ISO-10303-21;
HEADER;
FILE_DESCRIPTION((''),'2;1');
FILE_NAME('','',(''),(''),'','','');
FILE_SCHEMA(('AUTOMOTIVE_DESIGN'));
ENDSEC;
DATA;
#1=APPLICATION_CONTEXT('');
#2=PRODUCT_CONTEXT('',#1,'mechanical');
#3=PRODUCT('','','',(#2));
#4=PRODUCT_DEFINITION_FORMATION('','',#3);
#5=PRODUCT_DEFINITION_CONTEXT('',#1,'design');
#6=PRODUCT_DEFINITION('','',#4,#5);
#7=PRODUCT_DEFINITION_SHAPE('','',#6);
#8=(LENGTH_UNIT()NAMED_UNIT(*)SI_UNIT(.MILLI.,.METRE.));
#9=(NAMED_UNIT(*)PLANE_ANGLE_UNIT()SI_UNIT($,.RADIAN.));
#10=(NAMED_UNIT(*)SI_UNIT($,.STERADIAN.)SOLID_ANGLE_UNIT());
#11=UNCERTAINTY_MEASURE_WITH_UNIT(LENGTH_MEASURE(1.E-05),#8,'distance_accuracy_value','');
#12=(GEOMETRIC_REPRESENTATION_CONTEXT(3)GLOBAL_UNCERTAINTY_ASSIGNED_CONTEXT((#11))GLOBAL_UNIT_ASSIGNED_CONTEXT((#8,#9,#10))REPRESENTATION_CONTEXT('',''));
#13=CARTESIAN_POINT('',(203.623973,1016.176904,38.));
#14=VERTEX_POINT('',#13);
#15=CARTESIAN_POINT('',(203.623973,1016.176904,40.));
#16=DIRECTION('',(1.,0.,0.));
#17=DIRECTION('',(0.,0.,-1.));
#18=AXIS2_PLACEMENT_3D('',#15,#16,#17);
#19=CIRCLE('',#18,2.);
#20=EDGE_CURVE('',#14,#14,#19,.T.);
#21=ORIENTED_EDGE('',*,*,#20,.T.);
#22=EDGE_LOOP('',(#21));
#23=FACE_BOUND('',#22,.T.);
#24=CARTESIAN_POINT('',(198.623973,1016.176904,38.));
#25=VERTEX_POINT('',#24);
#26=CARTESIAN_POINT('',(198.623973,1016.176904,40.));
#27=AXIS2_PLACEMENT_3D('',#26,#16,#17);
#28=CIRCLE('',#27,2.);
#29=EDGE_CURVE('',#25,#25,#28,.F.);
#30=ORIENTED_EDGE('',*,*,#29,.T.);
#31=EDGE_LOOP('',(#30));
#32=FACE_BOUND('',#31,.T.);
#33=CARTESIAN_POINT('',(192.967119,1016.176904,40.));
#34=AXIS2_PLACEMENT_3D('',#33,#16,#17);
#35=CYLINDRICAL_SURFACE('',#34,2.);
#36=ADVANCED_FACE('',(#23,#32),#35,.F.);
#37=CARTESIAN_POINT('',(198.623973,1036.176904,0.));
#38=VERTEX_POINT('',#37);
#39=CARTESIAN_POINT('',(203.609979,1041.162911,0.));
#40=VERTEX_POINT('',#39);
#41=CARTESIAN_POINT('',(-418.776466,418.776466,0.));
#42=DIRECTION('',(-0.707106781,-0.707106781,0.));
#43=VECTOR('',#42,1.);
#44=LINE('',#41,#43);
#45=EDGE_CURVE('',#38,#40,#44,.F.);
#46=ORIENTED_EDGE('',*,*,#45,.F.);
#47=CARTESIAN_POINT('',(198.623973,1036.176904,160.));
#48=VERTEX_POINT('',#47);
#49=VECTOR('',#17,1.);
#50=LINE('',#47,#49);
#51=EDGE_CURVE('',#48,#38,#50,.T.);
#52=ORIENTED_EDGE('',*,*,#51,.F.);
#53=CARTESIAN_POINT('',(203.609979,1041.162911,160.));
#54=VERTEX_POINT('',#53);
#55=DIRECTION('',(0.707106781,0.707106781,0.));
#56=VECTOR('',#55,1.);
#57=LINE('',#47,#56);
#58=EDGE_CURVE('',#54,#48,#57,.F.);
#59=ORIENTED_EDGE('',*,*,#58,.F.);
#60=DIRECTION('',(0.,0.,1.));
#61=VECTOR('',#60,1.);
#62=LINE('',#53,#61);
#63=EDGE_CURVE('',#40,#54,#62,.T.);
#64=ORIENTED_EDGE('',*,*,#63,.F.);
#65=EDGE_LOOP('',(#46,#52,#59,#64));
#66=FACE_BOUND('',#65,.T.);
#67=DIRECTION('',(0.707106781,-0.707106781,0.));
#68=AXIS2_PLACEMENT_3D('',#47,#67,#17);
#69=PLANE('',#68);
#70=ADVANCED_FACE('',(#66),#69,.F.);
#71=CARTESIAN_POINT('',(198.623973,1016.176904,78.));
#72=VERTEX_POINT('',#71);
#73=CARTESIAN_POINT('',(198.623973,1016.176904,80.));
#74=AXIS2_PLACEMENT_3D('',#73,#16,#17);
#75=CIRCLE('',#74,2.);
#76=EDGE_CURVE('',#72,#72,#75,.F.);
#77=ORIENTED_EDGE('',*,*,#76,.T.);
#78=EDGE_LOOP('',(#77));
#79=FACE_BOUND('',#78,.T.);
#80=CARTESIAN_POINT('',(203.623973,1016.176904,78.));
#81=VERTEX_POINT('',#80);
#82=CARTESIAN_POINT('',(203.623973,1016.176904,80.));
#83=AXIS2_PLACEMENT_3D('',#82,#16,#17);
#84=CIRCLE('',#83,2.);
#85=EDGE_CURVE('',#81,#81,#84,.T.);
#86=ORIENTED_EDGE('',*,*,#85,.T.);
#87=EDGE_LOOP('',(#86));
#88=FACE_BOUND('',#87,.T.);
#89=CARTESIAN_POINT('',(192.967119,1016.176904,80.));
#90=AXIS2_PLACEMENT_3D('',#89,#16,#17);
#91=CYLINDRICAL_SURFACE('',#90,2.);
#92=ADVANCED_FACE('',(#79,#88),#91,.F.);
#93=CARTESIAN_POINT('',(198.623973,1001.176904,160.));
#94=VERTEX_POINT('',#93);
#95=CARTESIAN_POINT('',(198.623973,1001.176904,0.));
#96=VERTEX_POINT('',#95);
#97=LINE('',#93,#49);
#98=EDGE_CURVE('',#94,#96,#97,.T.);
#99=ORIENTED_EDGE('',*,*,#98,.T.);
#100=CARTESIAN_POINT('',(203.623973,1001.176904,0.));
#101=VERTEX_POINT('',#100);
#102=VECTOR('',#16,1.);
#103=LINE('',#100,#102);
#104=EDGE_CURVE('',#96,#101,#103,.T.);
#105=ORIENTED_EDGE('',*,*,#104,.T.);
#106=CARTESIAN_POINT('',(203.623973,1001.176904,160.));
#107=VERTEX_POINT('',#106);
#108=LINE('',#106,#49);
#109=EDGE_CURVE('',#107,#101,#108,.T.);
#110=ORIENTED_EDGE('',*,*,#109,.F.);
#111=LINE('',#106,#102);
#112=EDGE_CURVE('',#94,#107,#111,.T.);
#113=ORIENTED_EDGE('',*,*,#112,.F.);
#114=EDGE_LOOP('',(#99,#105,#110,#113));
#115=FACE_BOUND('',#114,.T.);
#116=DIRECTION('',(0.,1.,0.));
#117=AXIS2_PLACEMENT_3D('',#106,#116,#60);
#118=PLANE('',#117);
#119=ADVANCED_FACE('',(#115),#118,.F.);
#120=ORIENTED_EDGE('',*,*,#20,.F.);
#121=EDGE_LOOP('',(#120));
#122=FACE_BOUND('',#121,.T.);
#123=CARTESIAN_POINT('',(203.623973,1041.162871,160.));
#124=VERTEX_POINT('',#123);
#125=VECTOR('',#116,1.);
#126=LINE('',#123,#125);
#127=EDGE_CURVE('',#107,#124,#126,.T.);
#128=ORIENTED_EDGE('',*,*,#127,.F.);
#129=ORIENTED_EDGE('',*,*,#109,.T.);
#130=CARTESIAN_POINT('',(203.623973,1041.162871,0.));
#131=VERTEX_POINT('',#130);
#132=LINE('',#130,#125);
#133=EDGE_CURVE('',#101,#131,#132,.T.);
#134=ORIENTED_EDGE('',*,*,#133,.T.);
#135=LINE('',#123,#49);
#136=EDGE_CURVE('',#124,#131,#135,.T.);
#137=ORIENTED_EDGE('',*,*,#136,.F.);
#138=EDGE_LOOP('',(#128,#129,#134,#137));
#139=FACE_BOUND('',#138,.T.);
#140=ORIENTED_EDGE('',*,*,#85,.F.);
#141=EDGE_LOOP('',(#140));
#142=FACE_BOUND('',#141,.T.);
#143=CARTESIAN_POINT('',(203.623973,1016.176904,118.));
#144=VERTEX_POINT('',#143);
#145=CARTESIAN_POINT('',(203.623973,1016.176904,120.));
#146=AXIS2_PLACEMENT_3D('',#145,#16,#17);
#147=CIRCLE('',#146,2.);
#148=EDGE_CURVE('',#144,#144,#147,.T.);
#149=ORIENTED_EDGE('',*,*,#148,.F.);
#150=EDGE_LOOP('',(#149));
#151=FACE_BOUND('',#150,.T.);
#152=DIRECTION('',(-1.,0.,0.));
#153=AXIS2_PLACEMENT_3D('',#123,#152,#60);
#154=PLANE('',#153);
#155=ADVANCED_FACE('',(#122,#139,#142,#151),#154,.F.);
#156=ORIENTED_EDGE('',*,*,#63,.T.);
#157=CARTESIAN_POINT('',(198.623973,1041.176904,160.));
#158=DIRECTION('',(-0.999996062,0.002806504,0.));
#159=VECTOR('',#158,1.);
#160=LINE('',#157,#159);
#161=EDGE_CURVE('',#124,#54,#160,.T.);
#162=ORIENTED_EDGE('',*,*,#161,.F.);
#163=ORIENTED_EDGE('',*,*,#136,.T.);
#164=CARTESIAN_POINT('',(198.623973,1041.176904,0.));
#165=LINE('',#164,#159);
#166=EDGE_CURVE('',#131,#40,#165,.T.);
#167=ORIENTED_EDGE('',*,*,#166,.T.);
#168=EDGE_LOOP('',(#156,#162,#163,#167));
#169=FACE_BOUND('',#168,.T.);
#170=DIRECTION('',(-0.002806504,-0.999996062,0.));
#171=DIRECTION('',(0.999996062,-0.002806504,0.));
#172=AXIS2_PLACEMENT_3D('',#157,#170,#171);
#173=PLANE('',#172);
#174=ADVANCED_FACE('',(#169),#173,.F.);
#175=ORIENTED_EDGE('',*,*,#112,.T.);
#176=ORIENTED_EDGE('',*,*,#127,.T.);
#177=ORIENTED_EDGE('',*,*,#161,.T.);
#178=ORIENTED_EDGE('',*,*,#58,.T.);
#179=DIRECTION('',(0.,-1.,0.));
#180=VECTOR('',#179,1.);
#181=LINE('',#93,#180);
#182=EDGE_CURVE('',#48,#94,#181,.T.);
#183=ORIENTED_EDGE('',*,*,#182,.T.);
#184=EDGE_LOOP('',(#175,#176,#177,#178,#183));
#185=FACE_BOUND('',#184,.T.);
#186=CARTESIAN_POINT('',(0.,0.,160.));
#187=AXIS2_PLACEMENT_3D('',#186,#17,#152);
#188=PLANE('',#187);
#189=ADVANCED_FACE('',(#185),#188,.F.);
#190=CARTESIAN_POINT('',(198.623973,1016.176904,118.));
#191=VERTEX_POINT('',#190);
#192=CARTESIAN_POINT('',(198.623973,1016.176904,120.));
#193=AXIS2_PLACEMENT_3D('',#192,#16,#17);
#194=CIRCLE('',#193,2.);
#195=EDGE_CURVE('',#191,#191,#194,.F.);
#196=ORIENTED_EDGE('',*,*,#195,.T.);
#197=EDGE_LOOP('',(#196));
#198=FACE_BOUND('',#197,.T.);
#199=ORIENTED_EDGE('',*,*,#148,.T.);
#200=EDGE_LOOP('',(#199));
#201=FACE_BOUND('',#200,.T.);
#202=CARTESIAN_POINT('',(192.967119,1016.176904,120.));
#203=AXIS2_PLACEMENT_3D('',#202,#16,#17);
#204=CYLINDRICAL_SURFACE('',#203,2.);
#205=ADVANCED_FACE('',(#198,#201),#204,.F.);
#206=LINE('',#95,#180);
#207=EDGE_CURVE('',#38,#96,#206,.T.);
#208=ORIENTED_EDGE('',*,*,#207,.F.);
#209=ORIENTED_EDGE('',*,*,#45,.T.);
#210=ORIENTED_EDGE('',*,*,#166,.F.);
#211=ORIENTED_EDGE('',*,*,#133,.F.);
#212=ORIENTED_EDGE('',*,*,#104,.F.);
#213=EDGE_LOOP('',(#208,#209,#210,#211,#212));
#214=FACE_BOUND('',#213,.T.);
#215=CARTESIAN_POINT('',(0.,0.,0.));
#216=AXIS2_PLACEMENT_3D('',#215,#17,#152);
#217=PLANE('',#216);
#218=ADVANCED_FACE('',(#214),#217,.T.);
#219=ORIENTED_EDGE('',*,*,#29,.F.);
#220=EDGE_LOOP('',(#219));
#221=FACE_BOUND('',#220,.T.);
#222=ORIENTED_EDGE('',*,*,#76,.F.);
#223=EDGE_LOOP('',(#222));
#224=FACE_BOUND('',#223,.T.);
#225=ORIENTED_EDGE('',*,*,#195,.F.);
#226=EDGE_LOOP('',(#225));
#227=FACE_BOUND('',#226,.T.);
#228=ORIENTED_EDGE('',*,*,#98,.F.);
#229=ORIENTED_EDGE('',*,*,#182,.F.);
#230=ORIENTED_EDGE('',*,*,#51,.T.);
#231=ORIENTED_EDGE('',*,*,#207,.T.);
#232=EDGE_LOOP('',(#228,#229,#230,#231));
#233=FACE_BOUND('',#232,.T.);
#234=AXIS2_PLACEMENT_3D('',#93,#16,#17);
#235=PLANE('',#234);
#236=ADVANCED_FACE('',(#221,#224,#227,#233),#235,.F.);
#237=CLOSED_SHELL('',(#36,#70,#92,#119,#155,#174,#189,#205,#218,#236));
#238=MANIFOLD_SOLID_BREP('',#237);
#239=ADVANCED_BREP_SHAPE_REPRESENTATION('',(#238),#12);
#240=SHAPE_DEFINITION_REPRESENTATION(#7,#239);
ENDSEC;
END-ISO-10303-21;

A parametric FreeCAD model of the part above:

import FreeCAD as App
import Part
import Sketcher

V = App.Vector
Q = App.Units.Quantity


def edges_at(feature, points):
    """Names of the edges that pass closest to the given points."""
    edges = feature.Shape.Edges
    near = lambda p: min(range(len(edges)), key=lambda i: edges[i].distToShape(Part.Vertex(*p))[0])
    return sorted({f"Edge{near(p) + 1}" for p in points})


def add_polygon(sketch, points):
    """Adds a closed chain of lines whose ends are joined by coincident constraints."""
    first, n = sketch.GeometryCount, len(points)
    for a, b in zip(points, points[1:] + points[:1]):
        sketch.addGeometry(Part.LineSegment(App.Vector(*a, 0), App.Vector(*b, 0)), False)
    for i in range(n):
        sketch.addConstraint(Sketcher.Constraint("Coincident", first + i, 2, first + (i + 1) % n, 1))

doc = App.newDocument("Part")
body = doc.addObject("PartDesign::Body", "Body")

# Sketch on XY plane
sketch1 = body.newObject("Sketcher::SketchObject", "Sketch")
sketch1.AttachmentSupport = (doc.getObject("XY_Plane"), [""])
sketch1.MapMode = "FlatFace"
add_polygon(sketch1, [(199, 1001), (204, 1001), (204, 1041), (199, 1041)])  # lines 0-3
sketch1.addConstraint(Sketcher.Constraint("Horizontal", 0))
sketch1.addConstraint(Sketcher.Constraint("Vertical", 1))
sketch1.addConstraint(Sketcher.Constraint("Vertical", 3))
sketch1.addConstraint(Sketcher.Constraint("DistanceX", 0, 1, 0, 2, Q("5 mm")))
sketch1.addConstraint(Sketcher.Constraint("DistanceY", 3, 2, 3, 1, Q("40 mm")))
sketch1.addConstraint(Sketcher.Constraint("DistanceY", 1, 1, 1, 2, Q("39.985967 mm")))
sketch1.addConstraint(Sketcher.Constraint("DistanceY", -1, 1, 1, 2, Q("1041.162871 mm")))
sketch1.addConstraint(Sketcher.Constraint("DistanceX", -1, 1, 0, 2, Q("203.623973 mm")))
pad1 = body.newObject("PartDesign::Pad", "Pad")
pad1.Profile = sketch1
pad1.Length = 160
doc.recompute()

chamfer = body.newObject("PartDesign::Chamfer", "Chamfer")
chamfer.Base = (pad1, edges_at(pad1, [(198.624, 1041.177, 80)]))
chamfer.ChamferType = "Two distances"
chamfer.Size = 5
chamfer.Size2 = 4.986026

# Sketch on YZ plane
sketch2 = body.newObject("Sketcher::SketchObject", "Sketch001")
sketch2.AttachmentSupport = (doc.getObject("YZ_Plane"), [""])
sketch2.MapMode = "FlatFace"
sketch2.AttachmentOffset = App.Placement(V(0, 0, 203.623973), App.Rotation())
sketch2.addGeometry(Part.Circle(V(1016.2, 40, 0), V(0, 0, 1), 2), False)
sketch2.addConstraint(Sketcher.Constraint("Diameter", 0, Q("4 mm")))
sketch2.addConstraint(Sketcher.Constraint("DistanceY", -1, 1, 0, 3, Q("40 mm")))
sketch2.addConstraint(Sketcher.Constraint("DistanceX", -1, 1, 0, 3, Q("1016.176904 mm")))
pocket1 = body.newObject("PartDesign::Pocket", "Pocket")
pocket1.Profile = sketch2
pocket1.Length = 5
doc.recompute()

linearpattern = body.newObject("PartDesign::LinearPattern", "LinearPattern")
linearpattern.Originals = [pocket1]
linearpattern.Direction = (doc.getObject("Z_Axis"), [""])
linearpattern.Mode = "offset"
linearpattern.Offset = 40
linearpattern.Occurrences = 3
body.Tip = linearpattern

doc.recompute()
